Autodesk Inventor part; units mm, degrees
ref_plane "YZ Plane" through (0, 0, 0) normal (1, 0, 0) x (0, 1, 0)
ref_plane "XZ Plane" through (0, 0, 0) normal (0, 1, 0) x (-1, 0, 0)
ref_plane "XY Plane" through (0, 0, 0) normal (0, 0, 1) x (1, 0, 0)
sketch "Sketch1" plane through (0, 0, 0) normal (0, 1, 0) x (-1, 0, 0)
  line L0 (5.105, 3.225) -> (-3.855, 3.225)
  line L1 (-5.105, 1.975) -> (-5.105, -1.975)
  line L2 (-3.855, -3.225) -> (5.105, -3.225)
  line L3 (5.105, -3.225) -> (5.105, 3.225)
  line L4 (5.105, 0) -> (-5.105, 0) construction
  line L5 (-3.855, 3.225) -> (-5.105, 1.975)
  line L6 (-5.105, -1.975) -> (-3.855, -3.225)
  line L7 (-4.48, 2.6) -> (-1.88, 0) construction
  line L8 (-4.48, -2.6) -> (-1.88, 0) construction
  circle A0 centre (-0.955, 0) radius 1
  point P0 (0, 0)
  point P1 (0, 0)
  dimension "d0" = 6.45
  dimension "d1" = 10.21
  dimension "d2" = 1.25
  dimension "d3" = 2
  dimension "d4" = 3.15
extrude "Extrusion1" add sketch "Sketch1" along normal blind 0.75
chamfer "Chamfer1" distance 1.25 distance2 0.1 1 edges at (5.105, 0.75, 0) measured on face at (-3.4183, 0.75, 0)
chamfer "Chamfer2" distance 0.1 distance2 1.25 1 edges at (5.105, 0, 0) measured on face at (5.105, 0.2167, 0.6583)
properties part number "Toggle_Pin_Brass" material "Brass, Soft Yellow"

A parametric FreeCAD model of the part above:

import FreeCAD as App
import Part
import Sketcher

V = App.Vector


def edges_at(feature, points):
    """Names of the edges that pass closest to the given points."""
    edges = feature.Shape.Edges
    near = lambda p: min(range(len(edges)), key=lambda i: edges[i].distToShape(Part.Vertex(*p))[0])
    return sorted({f"Edge{near(p) + 1}" for p in points})

doc = App.newDocument("Part")
body = doc.addObject("PartDesign::Body", "Body")

sketch1 = doc.addObject("Sketcher::SketchObject", "Sketch")
body.addObject(sketch1)
sketch1.AttachmentSupport = (doc.XZ_Plane, [""])
sketch1.MapMode = "FlatFace"
sketch1.addGeometry([
    Part.LineSegment(V(-5.1, -3.2, 0), V(-5.1, 3.2, 0)),
    Part.LineSegment(V(-5.1, 3.2, 0), V(3.9, 3.2, 0)),
    Part.LineSegment(V(3.9, 3.2, 0), V(5.1, 2, 0)),
    Part.LineSegment(V(5.1, 2, 0), V(5.1, -2, 0)),
    Part.LineSegment(V(5.1, -2, 0), V(3.9, -3.2, 0)),
    Part.LineSegment(V(3.9, -3.2, 0), V(-5.1, -3.2, 0)),
    Part.Circle(V(1, 0, 0), V(0, 0, 1), 1),
], False)
sketch1.addConstraint([
    Sketcher.Constraint("Coincident", 0, 2, 1, 1),
    Sketcher.Constraint("Coincident", 1, 2, 2, 1),
    Sketcher.Constraint("Coincident", 2, 2, 3, 1),
    Sketcher.Constraint("Coincident", 3, 2, 4, 1),
    Sketcher.Constraint("Coincident", 4, 2, 5, 1),
    Sketcher.Constraint("Coincident", 5, 2, 0, 1),
    Sketcher.Constraint("Vertical", 0),
    Sketcher.Constraint("Horizontal", 1),
    Sketcher.Constraint("Vertical", 3),
    Sketcher.Constraint("Horizontal", 5),
    Sketcher.Constraint("Symmetric", 1, 2, 4, 2, -1),
    Sketcher.Constraint("PointOnObject", 6, 3, -1),
    Sketcher.Constraint("Perpendicular", 2, 4),
    Sketcher.Constraint("Equal", 2, 4),
    Sketcher.Constraint("Diameter", 6, 2.0),
    Sketcher.Constraint("DistanceY", 0, 1, 0, 2, 6.45),
    Sketcher.Constraint("DistanceX", 1, 2, 2, 2, 1.25),
    Sketcher.Constraint("DistanceX", 0, 2, 2, 2, 10.21),
    Sketcher.Constraint("DistanceX", 6, 3, 1, 2, 2.9),
    Sketcher.Constraint("DistanceX", -1, 1, 6, 3, 0.955),
])
pad1 = doc.addObject("PartDesign::Pad", "Pad")
body.addObject(pad1)
pad1.Profile = sketch1
pad1.Length = 0.75
pad1.Reversed = True
doc.recompute()

chamfer = doc.addObject("PartDesign::Chamfer", "Chamfer")
body.addObject(chamfer)
chamfer.Base = (pad1, edges_at(pad1, [(5.105, 0.75, 0)]))
chamfer.ChamferType = "Two distances"
chamfer.Size = 1.25
chamfer.Size2 = 0.1
chamfer.FlipDirection = True
doc.recompute()

chamfer2 = doc.addObject("PartDesign::Chamfer", "Chamfer001")
body.addObject(chamfer2)
chamfer2.Base = (chamfer, edges_at(chamfer, [(5.105, 0, 0)]))
chamfer2.ChamferType = "Two distances"
chamfer2.Size = 0.1
chamfer2.Size2 = 1.25

doc.recompute()
